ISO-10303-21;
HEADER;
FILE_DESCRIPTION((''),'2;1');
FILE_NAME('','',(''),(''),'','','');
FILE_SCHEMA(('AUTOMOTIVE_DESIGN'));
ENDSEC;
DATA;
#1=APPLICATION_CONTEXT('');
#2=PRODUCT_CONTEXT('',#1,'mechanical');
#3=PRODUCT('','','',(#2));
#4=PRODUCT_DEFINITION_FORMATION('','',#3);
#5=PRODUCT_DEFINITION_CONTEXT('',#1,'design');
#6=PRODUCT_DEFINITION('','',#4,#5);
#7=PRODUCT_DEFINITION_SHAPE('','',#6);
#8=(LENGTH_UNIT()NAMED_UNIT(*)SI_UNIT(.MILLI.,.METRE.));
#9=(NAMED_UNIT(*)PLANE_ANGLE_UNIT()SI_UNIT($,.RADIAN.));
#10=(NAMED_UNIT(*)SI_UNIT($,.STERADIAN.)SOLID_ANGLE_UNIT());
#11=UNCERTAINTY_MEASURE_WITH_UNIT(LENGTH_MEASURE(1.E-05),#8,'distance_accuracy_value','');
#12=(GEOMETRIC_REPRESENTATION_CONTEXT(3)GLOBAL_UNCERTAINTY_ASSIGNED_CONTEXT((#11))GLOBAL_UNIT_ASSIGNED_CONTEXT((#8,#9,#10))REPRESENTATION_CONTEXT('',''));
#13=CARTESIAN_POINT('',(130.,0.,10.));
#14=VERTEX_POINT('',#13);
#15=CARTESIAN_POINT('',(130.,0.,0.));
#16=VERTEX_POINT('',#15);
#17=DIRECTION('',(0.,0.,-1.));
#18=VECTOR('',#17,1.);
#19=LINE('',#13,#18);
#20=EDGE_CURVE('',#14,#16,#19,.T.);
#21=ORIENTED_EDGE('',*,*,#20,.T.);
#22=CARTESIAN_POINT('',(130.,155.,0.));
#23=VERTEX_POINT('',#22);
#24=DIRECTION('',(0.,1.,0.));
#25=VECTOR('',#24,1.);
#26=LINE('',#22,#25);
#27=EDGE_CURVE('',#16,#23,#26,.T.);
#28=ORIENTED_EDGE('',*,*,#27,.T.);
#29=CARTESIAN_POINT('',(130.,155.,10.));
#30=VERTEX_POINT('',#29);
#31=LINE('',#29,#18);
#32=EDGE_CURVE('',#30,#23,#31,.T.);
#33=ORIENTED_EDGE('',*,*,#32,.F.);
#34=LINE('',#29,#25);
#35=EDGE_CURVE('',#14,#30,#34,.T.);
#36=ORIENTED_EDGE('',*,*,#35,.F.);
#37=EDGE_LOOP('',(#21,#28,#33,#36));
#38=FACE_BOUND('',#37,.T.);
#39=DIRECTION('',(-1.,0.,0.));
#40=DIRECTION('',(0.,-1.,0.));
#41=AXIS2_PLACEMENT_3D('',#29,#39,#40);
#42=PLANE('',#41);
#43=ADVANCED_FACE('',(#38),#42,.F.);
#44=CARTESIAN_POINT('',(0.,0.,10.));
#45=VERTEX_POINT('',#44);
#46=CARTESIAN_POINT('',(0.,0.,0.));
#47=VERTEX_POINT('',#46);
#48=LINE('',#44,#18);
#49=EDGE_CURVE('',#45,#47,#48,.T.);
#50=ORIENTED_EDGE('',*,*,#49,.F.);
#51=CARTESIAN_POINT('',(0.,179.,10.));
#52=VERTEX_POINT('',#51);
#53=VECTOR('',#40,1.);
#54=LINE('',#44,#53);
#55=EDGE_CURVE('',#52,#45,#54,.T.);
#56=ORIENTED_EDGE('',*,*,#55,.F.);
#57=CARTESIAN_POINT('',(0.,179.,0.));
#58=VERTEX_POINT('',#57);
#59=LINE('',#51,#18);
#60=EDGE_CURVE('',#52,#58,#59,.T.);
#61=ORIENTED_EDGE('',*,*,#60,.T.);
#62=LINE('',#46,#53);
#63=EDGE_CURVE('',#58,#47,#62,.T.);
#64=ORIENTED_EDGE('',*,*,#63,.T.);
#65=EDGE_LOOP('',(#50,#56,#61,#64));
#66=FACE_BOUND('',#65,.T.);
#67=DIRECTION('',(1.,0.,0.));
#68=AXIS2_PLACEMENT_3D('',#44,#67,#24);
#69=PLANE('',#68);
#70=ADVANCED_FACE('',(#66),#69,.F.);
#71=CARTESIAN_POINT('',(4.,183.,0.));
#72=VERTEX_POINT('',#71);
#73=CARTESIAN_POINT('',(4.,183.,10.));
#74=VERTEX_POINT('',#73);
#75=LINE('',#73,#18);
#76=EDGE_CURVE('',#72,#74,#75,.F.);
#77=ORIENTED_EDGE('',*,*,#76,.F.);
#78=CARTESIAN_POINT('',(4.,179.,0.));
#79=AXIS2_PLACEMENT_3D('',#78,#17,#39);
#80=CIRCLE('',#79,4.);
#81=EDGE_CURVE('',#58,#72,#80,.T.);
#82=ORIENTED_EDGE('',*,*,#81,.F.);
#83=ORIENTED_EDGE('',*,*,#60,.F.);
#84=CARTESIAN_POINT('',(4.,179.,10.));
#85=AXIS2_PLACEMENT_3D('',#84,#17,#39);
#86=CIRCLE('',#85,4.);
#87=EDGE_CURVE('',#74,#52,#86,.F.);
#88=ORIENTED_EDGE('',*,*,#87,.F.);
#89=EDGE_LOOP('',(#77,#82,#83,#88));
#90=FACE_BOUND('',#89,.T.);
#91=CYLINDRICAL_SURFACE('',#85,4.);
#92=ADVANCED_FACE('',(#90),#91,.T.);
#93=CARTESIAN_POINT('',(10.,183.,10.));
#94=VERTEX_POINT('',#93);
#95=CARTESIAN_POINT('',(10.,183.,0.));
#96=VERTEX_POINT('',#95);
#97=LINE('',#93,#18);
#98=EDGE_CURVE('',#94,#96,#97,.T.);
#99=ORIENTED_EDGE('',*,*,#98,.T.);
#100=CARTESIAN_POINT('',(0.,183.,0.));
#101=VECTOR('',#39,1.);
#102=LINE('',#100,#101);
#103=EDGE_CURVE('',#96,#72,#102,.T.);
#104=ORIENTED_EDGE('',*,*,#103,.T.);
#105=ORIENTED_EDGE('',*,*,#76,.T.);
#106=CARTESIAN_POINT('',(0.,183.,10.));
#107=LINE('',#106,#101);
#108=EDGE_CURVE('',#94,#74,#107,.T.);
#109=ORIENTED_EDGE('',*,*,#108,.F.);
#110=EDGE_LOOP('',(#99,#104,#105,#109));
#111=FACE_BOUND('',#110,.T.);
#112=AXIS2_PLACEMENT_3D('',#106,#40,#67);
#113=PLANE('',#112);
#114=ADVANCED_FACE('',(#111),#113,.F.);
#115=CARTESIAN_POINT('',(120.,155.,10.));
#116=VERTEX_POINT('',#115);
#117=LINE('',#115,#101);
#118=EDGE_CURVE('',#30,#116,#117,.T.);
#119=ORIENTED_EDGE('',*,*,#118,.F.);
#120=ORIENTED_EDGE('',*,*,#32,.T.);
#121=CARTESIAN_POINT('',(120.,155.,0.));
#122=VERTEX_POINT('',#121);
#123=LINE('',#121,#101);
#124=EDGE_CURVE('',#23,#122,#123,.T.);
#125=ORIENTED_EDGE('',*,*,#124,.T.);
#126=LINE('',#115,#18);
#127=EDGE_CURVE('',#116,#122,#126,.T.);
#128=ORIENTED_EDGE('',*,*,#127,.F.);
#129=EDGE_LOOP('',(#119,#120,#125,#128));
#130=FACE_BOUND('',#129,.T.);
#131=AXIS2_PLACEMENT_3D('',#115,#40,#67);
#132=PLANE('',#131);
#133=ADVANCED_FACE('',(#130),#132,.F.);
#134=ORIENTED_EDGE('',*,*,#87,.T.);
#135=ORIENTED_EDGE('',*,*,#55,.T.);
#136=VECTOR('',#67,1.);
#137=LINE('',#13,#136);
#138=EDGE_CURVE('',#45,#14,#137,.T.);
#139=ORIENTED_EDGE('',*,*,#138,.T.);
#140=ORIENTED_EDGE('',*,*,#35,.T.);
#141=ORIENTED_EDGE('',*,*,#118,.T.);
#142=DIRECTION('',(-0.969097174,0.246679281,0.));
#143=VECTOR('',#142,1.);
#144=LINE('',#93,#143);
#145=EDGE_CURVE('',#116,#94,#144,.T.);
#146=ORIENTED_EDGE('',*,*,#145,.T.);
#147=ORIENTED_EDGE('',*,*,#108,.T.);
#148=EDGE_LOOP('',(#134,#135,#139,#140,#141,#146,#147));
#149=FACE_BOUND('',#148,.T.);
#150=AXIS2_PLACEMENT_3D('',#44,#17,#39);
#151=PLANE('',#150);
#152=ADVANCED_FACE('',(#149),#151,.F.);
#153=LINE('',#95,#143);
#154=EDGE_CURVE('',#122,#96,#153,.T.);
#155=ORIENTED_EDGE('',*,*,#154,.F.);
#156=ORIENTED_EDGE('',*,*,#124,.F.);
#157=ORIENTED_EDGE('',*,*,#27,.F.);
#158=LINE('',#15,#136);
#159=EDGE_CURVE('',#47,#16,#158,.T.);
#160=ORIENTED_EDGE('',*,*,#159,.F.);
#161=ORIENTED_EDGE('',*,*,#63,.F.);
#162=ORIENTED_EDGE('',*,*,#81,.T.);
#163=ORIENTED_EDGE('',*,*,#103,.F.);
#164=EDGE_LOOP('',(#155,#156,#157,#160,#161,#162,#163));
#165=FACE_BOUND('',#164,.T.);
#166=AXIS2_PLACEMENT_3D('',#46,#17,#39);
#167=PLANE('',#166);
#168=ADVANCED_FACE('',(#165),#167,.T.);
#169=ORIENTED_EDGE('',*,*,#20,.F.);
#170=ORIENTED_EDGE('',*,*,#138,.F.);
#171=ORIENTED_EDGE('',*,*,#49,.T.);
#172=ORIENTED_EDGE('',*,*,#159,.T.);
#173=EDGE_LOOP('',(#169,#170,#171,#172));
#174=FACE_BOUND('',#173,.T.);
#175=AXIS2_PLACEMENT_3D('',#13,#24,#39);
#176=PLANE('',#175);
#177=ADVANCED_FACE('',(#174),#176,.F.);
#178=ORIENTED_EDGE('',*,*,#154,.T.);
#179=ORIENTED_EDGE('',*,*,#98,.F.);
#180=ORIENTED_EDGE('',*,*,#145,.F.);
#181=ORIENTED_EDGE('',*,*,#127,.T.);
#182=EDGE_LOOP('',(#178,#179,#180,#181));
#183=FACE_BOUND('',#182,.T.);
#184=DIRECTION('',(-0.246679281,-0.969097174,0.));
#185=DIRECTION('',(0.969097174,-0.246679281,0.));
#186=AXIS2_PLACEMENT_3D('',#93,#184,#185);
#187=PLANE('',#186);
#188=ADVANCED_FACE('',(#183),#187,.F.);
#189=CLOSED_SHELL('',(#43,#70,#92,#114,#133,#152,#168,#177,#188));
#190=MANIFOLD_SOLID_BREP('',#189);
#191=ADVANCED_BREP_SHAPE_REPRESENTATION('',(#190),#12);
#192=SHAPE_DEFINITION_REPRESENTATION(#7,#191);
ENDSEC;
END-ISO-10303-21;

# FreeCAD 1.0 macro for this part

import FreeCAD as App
import Part
import Sketcher


def edges_at(feature, points):
    """Names of the edges that pass closest to the given points."""
    edges = feature.Shape.Edges
    near = lambda p: min(range(len(edges)), key=lambda i: edges[i].distToShape(Part.Vertex(*p))[0])
    return sorted({f"Edge{near(p) + 1}" for p in points})


def add_polygon(sketch, points):
    """Adds a closed chain of lines whose ends are joined by coincident constraints."""
    first, n = sketch.GeometryCount, len(points)
    for a, b in zip(points, points[1:] + points[:1]):
        sketch.addGeometry(Part.LineSegment(App.Vector(*a, 0), App.Vector(*b, 0)), False)
    for i in range(n):
        sketch.addConstraint(Sketcher.Constraint("Coincident", first + i, 2, first + (i + 1) % n, 1))

doc = App.newDocument("Part")
body = doc.addObject("PartDesign::Body", "Body")

# Sketch on XY plane
sketch1 = doc.addObject("Sketcher::SketchObject", "Sketch")
body.addObject(sketch1)
sketch1.AttachmentSupport = (doc.XY_Plane, [""])
sketch1.MapMode = "FlatFace"
add_polygon(sketch1, [(10, 183), (0, 183), (0, 0), (130, 0), (130, 155), (120, 155)])  # lines 0-5
sketch1.addConstraint([
    Sketcher.Constraint("Horizontal", 0),
    Sketcher.Constraint("Vertical", 1),
    Sketcher.Constraint("Horizontal", 2),
    Sketcher.Constraint("Vertical", 3),
    Sketcher.Constraint("Horizontal", 4),
    Sketcher.Constraint("Coincident", 1, 2, -1, 1),
    Sketcher.Constraint("Equal", 0, 4),
    Sketcher.Constraint("DistanceX", 0, 2, 0, 1, 10.0),
    Sketcher.Constraint("DistanceX", 2, 1, 2, 2, 130.0),
    Sketcher.Constraint("DistanceY", 1, 2, 1, 1, 183.0),
    Sketcher.Constraint("DistanceY", 3, 1, 3, 2, 155.0),
])
pad1 = doc.addObject("PartDesign::Pad", "Pad")
body.addObject(pad1)
pad1.Profile = sketch1
pad1.Length = 10
doc.recompute()

fillet = doc.addObject("PartDesign::Fillet", "Fillet")
body.addObject(fillet)
fillet.Base = (pad1, edges_at(pad1, [(0, 183, 5)]))
fillet.Radius = 4

doc.recompute()
